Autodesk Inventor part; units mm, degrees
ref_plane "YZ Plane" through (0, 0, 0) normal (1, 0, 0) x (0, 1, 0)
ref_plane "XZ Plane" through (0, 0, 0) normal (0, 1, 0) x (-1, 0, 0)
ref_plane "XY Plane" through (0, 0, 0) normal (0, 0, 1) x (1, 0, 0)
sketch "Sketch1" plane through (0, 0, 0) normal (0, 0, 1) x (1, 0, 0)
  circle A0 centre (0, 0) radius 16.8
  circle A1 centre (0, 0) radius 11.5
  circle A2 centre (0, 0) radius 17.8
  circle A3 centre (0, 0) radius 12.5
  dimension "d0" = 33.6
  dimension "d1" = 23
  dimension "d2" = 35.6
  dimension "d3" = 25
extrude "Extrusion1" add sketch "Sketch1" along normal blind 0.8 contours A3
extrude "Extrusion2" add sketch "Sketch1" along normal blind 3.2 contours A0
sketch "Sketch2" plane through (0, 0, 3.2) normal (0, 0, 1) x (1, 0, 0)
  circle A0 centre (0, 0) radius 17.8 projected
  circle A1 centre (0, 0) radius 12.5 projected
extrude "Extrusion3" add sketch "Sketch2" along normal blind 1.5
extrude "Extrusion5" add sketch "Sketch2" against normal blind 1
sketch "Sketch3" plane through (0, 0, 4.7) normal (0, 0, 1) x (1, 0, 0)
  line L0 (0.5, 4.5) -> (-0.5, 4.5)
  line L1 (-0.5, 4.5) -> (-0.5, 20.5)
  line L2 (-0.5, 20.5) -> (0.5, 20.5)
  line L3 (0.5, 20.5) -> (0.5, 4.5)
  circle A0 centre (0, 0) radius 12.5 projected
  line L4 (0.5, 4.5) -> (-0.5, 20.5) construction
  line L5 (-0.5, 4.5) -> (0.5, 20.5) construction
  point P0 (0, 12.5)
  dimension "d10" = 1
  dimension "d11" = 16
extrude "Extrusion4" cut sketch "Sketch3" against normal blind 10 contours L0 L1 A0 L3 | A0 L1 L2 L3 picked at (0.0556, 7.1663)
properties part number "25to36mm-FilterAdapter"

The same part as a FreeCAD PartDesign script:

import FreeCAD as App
import Part
import Sketcher
from FreeCAD import Vector

doc = App.newDocument("Part")
body = doc.addObject("PartDesign::Body", "Body")

sketch1 = body.newObject("Sketcher::SketchObject", "Sketch")
sketch1.AttachmentSupport = (doc.getObject("XY_Plane"), [""])
sketch1.MapMode = "FlatFace"
sketch1.addGeometry([
    Part.Circle(Vector(0, 0, 0), Vector(0, 0, 1), 12),
    Part.Circle(Vector(0, 0, 0), Vector(0, 0, 1), 12),
], False)
sketch1.addConstraint([
    Sketcher.Constraint("Coincident", 0, 3, -1, 1),
    Sketcher.Constraint("Coincident", 1, 3, -1, 1),
    Sketcher.Constraint("Diameter", 0, 25.0),
    Sketcher.Constraint("Diameter", 1, 23.0),
])
pad1 = body.newObject("PartDesign::Pad", "Pad")
pad1.Profile = sketch1
pad1.Length = 0.8

sketch2 = body.newObject("Sketcher::SketchObject", "Sketch001")
sketch2.AttachmentSupport = (doc.getObject("XY_Plane"), [""])
sketch2.MapMode = "FlatFace"
sketch2.addGeometry([
    Part.Circle(Vector(0, 0, 0), Vector(0, 0, 1), 17),
    Part.Circle(Vector(0, 0, 0), Vector(0, 0, 1), 12),
], False)
sketch2.addConstraint([
    Sketcher.Constraint("Coincident", 0, 3, -1, 1),
    Sketcher.Constraint("Coincident", 1, 3, -1, 1),
    Sketcher.Constraint("Diameter", 1, 25.0),
    Sketcher.Constraint("Diameter", 0, 33.6),
])
pad2 = body.newObject("PartDesign::Pad", "Pad001")
pad2.Profile = sketch2
pad2.Length = 3.2

sketch3 = body.newObject("Sketcher::SketchObject", "Sketch002")
sketch3.AttachmentSupport = (doc.getObject("XY_Plane"), [""])
sketch3.MapMode = "FlatFace"
sketch3.AttachmentOffset = App.Placement(Vector(0, 0, 3.2), App.Rotation())
sketch3.addGeometry([
    Part.Circle(Vector(0, 0, 0), Vector(0, 0, 1), 18),
    Part.Circle(Vector(0, 0, 0), Vector(0, 0, 1), 12),
], False)
sketch3.addConstraint([
    Sketcher.Constraint("Coincident", 0, 3, -1, 1),
    Sketcher.Constraint("Coincident", 1, 3, -1, 1),
    Sketcher.Constraint("Diameter", 1, 25.0),
    Sketcher.Constraint("Diameter", 0, 35.6),
])
pad3 = body.newObject("PartDesign::Pad", "Pad002")
pad3.Profile = sketch3
pad3.Length = 1.5

sketch4 = body.newObject("Sketcher::SketchObject", "Sketch003")
sketch4.AttachmentSupport = (doc.getObject("XY_Plane"), [""])
sketch4.MapMode = "FlatFace"
sketch4.AttachmentOffset = App.Placement(Vector(0, 0, 3.2), App.Rotation())
sketch4.addGeometry([
    Part.Circle(Vector(0, 0, 0), Vector(0, 0, 1), 18),
    Part.Circle(Vector(0, 0, 0), Vector(0, 0, 1), 12),
], False)
sketch4.addConstraint([
    Sketcher.Constraint("Coincident", 0, 3, -1, 1),
    Sketcher.Constraint("Coincident", 1, 3, -1, 1),
    Sketcher.Constraint("Diameter", 1, 25.0),
    Sketcher.Constraint("Diameter", 0, 35.6),
])
pad4 = body.newObject("PartDesign::Pad", "Pad003")
pad4.Profile = sketch4
pad4.Length = 1
pad4.Reversed = True

sketch5 = body.newObject("Sketcher::SketchObject", "Sketch004")
sketch5.AttachmentSupport = (doc.getObject("XY_Plane"), [""])
sketch5.MapMode = "FlatFace"
sketch5.AttachmentOffset = App.Placement(Vector(0, 0, 4.7), App.Rotation())
sketch5.addGeometry([
    Part.LineSegment(Vector(-0.5, 4.5, 0), Vector(0.5, 4.5, 0)),
    Part.LineSegment(Vector(0.5, 4.5, 0), Vector(0.5, 20.5, 0)),
    Part.LineSegment(Vector(0.5, 20.5, 0), Vector(-0.5, 20.5, 0)),
    Part.LineSegment(Vector(-0.5, 20.5, 0), Vector(-0.5, 4.5, 0)),
], False)
sketch5.addConstraint([
    Sketcher.Constraint("Coincident", 0, 2, 1, 1),
    Sketcher.Constraint("Coincident", 1, 2, 2, 1),
    Sketcher.Constraint("Coincident", 2, 2, 3, 1),
    Sketcher.Constraint("Coincident", 3, 2, 0, 1),
    Sketcher.Constraint("Horizontal", 0),
    Sketcher.Constraint("Vertical", 1),
    Sketcher.Constraint("Horizontal", 2),
    Sketcher.Constraint("Vertical", 3),
    Sketcher.Constraint("DistanceX", 0, 1, 0, 2, 1.0),
    Sketcher.Constraint("DistanceY", 1, 1, 1, 2, 16.0),
    Sketcher.Constraint("DistanceX", -1, 1, 0, 2, 0.5),
    Sketcher.Constraint("DistanceY", -1, 1, 0, 2, 4.5),
])
pocket1 = body.newObject("PartDesign::Pocket", "Pocket")
pocket1.Profile = sketch5
pocket1.Length = 10

doc.recompute()
